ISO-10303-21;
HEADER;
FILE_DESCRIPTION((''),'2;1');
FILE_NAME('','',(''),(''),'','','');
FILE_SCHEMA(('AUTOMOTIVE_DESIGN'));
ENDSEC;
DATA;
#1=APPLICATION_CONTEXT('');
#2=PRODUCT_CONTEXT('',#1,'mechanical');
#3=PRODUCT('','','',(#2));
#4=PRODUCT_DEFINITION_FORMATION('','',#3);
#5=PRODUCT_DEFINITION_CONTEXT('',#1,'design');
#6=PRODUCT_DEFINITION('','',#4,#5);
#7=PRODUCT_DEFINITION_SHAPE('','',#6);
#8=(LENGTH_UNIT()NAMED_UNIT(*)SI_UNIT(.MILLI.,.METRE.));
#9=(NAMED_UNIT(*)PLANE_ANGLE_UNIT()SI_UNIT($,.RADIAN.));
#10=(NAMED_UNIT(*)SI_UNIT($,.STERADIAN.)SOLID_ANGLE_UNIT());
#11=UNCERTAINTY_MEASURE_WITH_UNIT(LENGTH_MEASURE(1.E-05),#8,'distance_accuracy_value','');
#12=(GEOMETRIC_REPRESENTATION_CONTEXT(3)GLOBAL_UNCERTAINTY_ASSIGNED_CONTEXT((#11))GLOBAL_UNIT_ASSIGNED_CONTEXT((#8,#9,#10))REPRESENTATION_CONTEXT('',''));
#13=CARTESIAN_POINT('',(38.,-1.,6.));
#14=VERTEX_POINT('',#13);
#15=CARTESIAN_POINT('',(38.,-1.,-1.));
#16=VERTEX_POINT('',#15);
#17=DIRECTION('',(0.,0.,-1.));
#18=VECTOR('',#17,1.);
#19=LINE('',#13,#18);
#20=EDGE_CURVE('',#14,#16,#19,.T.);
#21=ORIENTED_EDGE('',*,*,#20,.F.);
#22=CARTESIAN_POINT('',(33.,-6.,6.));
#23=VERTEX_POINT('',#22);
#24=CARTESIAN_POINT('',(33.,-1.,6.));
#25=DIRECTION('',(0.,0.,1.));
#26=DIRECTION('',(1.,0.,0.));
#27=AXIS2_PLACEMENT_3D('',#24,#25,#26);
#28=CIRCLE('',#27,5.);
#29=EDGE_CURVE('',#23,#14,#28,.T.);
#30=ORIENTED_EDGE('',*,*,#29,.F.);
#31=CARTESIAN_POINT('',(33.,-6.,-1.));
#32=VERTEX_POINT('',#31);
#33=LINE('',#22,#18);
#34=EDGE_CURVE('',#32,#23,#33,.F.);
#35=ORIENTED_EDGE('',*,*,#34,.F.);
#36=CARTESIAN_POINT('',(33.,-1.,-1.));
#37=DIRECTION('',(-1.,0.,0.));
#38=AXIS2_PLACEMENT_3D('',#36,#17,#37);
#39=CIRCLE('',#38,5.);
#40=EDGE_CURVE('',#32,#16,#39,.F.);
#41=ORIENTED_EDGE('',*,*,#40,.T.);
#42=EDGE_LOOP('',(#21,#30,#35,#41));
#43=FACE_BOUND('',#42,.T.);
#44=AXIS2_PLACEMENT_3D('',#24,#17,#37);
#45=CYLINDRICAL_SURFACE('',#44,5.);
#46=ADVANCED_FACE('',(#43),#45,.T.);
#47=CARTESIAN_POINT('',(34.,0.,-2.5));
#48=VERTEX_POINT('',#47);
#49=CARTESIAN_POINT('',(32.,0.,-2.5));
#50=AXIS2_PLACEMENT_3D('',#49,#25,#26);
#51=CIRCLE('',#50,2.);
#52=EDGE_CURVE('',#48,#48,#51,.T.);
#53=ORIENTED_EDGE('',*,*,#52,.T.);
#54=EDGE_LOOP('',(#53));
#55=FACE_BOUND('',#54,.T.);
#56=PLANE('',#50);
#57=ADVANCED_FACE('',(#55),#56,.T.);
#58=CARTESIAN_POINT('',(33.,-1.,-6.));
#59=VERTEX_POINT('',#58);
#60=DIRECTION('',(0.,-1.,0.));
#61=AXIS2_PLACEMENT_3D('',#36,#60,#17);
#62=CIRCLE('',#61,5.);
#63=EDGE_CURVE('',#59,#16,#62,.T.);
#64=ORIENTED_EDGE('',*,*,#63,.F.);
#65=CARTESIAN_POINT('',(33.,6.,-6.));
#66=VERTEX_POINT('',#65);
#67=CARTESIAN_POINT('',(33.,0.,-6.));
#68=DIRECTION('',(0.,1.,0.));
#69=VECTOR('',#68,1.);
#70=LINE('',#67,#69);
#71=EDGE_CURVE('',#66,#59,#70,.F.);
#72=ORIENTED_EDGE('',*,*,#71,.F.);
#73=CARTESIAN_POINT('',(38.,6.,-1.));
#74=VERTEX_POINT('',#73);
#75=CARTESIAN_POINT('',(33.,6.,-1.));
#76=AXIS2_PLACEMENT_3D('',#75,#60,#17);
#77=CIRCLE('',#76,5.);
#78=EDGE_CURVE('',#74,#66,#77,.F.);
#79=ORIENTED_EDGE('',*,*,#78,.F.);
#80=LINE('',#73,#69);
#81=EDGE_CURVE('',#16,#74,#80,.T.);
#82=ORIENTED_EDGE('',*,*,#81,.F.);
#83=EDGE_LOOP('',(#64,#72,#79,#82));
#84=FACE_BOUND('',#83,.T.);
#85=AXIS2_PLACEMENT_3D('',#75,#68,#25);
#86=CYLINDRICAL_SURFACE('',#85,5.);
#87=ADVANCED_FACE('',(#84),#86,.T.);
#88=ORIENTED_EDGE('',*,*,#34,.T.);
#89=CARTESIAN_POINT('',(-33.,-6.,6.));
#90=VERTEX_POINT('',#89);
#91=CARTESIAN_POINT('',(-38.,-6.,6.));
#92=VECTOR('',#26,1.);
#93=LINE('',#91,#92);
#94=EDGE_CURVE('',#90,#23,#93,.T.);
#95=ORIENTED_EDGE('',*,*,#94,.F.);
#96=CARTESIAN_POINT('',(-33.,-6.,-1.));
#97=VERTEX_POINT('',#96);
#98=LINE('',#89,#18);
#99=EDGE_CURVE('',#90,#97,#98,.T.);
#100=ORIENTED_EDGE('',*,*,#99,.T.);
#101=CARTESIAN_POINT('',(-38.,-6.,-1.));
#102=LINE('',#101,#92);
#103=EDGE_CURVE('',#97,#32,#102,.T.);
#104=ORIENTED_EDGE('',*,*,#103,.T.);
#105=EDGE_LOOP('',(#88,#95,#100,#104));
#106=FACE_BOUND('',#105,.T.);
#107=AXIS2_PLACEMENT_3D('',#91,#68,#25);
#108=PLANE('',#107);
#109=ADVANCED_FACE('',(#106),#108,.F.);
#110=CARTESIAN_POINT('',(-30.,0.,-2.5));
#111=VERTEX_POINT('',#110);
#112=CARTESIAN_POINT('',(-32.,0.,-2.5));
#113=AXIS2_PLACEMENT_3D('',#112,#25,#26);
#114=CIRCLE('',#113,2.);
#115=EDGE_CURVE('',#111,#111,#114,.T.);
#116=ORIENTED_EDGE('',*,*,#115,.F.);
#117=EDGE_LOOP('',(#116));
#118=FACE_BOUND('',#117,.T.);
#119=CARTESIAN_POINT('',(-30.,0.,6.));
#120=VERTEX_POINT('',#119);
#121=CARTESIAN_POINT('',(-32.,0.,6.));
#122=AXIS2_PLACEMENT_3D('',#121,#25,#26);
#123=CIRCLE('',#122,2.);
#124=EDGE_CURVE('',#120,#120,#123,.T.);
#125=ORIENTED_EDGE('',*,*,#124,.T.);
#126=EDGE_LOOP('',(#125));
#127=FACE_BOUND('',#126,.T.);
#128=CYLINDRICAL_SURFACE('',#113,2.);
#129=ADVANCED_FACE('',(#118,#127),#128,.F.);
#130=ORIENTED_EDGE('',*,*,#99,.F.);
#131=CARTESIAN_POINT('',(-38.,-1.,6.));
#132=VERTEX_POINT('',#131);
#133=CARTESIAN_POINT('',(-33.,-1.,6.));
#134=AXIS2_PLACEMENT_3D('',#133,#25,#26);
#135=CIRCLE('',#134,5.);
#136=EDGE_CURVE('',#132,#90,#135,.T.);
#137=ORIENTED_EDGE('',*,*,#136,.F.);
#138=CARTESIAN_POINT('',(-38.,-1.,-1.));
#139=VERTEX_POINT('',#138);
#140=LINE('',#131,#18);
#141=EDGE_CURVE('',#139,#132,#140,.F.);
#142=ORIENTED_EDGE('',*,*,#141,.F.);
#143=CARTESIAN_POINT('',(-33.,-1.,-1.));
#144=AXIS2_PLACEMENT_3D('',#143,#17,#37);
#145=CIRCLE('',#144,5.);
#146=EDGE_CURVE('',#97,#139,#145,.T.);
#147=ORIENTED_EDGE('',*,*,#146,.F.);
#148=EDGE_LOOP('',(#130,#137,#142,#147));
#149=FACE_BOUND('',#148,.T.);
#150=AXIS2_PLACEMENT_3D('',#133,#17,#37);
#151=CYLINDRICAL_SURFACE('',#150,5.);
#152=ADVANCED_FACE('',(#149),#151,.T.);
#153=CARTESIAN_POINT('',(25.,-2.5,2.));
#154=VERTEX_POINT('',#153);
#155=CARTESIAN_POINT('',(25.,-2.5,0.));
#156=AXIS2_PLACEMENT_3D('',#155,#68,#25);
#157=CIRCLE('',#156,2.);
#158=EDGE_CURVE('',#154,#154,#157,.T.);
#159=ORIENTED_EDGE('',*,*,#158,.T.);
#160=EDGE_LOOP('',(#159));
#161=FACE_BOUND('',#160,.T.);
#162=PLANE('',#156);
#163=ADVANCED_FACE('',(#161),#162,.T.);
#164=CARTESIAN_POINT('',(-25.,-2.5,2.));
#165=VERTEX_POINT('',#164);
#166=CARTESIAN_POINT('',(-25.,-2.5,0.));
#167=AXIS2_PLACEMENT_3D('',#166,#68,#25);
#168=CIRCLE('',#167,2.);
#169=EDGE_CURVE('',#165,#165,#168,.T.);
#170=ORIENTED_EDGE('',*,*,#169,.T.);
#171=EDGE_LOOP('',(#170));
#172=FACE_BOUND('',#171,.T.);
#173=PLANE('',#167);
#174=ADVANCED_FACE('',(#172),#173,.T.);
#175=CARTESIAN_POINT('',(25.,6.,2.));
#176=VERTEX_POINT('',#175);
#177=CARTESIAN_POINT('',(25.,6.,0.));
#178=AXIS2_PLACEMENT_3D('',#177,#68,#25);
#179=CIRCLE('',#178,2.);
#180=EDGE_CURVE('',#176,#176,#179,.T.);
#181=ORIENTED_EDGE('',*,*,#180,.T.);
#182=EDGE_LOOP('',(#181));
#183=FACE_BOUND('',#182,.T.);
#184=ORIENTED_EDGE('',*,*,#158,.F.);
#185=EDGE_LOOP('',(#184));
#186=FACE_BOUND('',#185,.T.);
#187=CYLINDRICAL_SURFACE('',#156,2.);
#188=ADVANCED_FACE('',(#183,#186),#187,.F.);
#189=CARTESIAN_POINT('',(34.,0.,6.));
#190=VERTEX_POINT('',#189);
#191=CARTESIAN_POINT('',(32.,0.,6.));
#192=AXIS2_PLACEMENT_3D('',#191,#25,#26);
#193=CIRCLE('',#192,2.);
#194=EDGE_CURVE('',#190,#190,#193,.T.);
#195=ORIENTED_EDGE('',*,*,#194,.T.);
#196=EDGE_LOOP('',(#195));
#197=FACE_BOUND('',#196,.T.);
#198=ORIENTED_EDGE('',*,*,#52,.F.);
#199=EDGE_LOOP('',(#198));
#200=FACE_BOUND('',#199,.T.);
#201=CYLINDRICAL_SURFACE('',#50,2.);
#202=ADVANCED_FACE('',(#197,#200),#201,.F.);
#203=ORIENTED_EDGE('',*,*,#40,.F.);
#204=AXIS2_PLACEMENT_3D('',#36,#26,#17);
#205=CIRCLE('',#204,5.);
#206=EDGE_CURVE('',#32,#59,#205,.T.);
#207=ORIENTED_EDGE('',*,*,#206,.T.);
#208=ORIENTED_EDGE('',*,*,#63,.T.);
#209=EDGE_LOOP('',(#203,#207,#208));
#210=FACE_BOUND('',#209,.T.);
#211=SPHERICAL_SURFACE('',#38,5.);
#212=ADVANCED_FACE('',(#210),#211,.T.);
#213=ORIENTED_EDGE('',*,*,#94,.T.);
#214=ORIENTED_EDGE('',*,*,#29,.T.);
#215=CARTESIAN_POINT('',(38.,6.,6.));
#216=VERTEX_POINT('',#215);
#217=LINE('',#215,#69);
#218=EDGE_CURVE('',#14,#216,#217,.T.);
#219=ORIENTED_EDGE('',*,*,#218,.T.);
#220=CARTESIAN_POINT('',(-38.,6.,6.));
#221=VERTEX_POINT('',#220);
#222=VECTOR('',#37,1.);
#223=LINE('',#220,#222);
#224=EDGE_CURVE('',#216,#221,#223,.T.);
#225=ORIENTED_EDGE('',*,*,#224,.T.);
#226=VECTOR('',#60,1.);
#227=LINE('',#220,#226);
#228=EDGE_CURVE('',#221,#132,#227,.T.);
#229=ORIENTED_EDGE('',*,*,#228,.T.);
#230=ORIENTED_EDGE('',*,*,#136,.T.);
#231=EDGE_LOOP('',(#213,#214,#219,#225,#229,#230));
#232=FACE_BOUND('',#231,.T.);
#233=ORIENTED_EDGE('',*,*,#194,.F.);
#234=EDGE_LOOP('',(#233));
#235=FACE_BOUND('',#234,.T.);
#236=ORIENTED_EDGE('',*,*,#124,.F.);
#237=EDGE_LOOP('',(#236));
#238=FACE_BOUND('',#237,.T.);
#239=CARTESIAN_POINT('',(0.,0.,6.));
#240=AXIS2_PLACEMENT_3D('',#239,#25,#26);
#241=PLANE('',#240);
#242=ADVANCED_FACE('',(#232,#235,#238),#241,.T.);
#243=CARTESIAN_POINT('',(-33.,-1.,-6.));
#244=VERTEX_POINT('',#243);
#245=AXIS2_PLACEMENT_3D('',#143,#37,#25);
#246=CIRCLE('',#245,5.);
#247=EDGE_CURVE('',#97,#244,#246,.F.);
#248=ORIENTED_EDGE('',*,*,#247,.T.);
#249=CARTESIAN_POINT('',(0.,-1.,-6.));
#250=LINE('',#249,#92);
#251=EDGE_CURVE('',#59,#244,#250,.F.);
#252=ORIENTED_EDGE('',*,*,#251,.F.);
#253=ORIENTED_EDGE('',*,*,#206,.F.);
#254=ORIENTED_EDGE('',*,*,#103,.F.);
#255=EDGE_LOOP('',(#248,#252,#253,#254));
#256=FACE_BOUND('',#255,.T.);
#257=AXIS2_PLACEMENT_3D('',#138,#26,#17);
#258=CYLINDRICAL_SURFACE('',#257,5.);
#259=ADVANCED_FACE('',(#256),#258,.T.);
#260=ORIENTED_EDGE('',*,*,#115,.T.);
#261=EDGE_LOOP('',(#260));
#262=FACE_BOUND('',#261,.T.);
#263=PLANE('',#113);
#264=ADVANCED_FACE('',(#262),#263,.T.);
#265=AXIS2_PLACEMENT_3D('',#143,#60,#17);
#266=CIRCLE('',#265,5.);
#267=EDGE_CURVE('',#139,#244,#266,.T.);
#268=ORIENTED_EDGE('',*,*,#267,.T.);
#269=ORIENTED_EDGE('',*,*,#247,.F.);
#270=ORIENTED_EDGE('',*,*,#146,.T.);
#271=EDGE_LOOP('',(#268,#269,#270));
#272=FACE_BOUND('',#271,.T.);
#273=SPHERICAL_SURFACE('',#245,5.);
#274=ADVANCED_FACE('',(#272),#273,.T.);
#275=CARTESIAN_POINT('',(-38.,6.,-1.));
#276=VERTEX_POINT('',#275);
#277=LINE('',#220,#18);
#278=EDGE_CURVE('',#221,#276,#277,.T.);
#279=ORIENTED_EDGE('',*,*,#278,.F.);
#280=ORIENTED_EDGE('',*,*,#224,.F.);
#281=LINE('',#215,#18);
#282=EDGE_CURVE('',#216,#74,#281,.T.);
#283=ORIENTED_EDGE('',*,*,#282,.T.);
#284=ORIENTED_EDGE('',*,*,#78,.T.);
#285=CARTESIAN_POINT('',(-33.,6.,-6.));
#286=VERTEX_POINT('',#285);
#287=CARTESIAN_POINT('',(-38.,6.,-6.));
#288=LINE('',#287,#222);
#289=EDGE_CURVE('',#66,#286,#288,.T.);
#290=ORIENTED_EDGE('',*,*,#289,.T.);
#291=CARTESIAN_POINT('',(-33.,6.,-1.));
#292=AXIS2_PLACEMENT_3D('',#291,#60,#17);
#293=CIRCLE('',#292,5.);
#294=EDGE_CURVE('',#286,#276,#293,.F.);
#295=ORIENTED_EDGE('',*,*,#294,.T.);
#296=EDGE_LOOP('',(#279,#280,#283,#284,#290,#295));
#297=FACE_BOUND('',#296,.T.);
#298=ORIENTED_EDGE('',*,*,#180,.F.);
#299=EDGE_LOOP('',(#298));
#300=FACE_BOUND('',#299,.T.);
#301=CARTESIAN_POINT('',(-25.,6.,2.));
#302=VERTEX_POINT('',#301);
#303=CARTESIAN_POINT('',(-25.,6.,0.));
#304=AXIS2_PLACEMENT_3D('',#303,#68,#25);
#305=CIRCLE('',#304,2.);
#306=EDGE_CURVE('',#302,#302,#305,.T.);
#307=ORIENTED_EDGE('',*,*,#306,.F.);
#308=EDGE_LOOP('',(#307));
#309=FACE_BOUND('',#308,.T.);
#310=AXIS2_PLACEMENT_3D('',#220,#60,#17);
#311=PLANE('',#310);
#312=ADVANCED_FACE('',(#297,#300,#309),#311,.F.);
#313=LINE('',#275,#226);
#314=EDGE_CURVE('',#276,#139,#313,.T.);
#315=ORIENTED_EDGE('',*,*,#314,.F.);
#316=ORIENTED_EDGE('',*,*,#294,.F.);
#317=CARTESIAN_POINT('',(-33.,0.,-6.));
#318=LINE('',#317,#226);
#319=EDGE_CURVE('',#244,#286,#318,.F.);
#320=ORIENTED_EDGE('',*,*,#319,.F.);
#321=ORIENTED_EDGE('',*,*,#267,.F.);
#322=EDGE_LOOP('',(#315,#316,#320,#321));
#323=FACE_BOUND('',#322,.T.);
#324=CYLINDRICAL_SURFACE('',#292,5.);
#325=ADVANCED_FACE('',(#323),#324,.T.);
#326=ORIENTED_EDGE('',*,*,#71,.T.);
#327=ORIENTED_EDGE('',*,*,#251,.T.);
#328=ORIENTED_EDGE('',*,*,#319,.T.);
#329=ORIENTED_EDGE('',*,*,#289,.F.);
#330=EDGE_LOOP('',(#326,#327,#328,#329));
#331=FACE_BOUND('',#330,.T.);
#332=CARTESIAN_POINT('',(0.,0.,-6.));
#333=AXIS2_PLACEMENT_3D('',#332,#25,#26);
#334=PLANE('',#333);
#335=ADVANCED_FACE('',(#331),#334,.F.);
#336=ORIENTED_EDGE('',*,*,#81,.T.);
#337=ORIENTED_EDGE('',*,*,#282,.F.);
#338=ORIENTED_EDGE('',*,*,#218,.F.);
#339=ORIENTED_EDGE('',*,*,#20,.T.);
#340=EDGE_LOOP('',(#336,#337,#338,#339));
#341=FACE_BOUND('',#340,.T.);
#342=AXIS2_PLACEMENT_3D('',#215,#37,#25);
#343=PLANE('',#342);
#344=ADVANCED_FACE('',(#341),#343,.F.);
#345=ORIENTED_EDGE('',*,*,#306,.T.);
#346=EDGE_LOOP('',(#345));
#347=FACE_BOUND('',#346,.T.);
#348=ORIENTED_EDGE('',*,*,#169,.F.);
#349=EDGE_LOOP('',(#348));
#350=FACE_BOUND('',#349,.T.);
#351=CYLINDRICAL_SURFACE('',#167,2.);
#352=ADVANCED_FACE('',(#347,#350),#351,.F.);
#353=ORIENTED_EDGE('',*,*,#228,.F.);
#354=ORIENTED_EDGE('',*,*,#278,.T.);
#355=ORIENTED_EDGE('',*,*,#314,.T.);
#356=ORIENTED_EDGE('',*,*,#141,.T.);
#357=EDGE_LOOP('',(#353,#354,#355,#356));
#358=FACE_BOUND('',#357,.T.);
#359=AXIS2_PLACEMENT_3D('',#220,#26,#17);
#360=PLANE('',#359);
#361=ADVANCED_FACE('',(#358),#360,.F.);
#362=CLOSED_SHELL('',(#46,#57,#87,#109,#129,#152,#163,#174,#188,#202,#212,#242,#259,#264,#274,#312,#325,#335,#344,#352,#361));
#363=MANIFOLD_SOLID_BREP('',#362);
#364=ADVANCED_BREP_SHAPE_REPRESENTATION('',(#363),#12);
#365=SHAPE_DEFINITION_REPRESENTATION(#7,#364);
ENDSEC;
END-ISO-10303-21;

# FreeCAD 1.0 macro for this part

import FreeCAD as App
import Part
import Sketcher
Q = App.Units.Quantity


def edges_at(feature, points):
    """Names of the edges that pass closest to the given points."""
    edges = feature.Shape.Edges
    near = lambda p: min(range(len(edges)), key=lambda i: edges[i].distToShape(Part.Vertex(*p))[0])
    return sorted({f"Edge{near(p) + 1}" for p in points})


def add_polygon(sketch, points):
    """Adds a closed chain of lines whose ends are joined by coincident constraints."""
    first, n = sketch.GeometryCount, len(points)
    for a, b in zip(points, points[1:] + points[:1]):
        sketch.addGeometry(Part.LineSegment(App.Vector(*a, 0), App.Vector(*b, 0)), False)
    for i in range(n):
        sketch.addConstraint(Sketcher.Constraint("Coincident", first + i, 2, first + (i + 1) % n, 1))

doc = App.newDocument("Part")
params = doc.addObject("Spreadsheet::Sheet", "Params")
for row, (alias, value) in enumerate([
    ("sketch1_width", "76 mm"),
    ("sketch1_height", "12 mm"),
    ("pad1_length", "12 mm"),
    ("sketch2_diameter", "4 mm"),
    ("pocket1_length", "8.5 mm"),
    ("sketch3_diameter", "4 mm"),
    ("pocket2_length", "8.5 mm"),
    ("fillet_radius", "5 mm"),
], start=1):
    params.set(f"A{row}", alias)
    params.set(f"B{row}", "=" + value)
    params.setAlias(f"B{row}", alias)

body = doc.addObject("PartDesign::Body", "Body")

# Sketch on XY plane
sketch1 = body.newObject("Sketcher::SketchObject", "Sketch")
sketch1.AttachmentSupport = (doc.getObject("XY_Plane"), [""])
sketch1.MapMode = "FlatFace"
add_polygon(sketch1, [(-38, 6), (-38, -6), (38, -6), (38, 6)])  # lines 0-3
sketch1.addConstraint(Sketcher.Constraint("Vertical", 0))
sketch1.addConstraint(Sketcher.Constraint("Horizontal", 1))
sketch1.addConstraint(Sketcher.Constraint("Vertical", 2))
sketch1.addConstraint(Sketcher.Constraint("Horizontal", 3))
sketch1.addConstraint(Sketcher.Constraint("Symmetric", 0, 2, 2, 2, -1, 1))
sketch1.addConstraint(Sketcher.Constraint("DistanceX", 1, 1, 1, 2, Q("76 mm")))
sketch1.addConstraint(Sketcher.Constraint("DistanceY", 0, 2, 0, 1, Q("12 mm")))
sketch1.setExpression("Constraints[9]", "Params.sketch1_width")
sketch1.setExpression("Constraints[10]", "Params.sketch1_height")
pad1 = body.newObject("PartDesign::Pad", "Pad")
pad1.Profile = sketch1
pad1.setExpression("Length", "Params.pad1_length")
pad1.Midplane = True

# Sketch on XY plane
sketch2 = body.newObject("Sketcher::SketchObject", "Sketch001")
sketch2.AttachmentSupport = (doc.getObject("XY_Plane"), [""])
sketch2.MapMode = "FlatFace"
sketch2.AttachmentOffset = App.Placement(App.Vector(0, 0, 6), App.Rotation())
sketch2.addGeometry(Part.Circle(App.Vector(-32, 0, 0), App.Vector(0, 0, 1), 2), False)
sketch2.addGeometry(Part.Circle(App.Vector(32, 0, 0), App.Vector(0, 0, 1), 2), False)
sketch2.addConstraint(Sketcher.Constraint("Equal", 0, 1))
sketch2.addConstraint(Sketcher.Constraint("Symmetric", 0, 3, 1, 3, -1, 1))
sketch2.addConstraint(Sketcher.Constraint("PointOnObject", 0, 3, -1))
sketch2.addConstraint(Sketcher.Constraint("Diameter", 0, Q("4 mm")))
sketch2.addConstraint(Sketcher.Constraint("DistanceX", 0, 3, -1, 1, Q("32 mm")))
sketch2.setExpression("Constraints[3]", "Params.sketch2_diameter")
pocket1 = body.newObject("PartDesign::Pocket", "Pocket")
pocket1.Profile = sketch2
pocket1.setExpression("Length", "Params.pocket1_length")

# Sketch on XZ plane
sketch3 = body.newObject("Sketcher::SketchObject", "Sketch002")
sketch3.AttachmentSupport = (doc.getObject("XZ_Plane"), [""])
sketch3.MapMode = "FlatFace"
sketch3.AttachmentOffset = App.Placement(App.Vector(0, 0, -6), App.Rotation())
sketch3.addGeometry(Part.Circle(App.Vector(-25, 0, 0), App.Vector(0, 0, 1), 2), False)
sketch3.addGeometry(Part.Circle(App.Vector(25, 0, 0), App.Vector(0, 0, 1), 2), False)
sketch3.addConstraint(Sketcher.Constraint("Equal", 0, 1))
sketch3.addConstraint(Sketcher.Constraint("Symmetric", 0, 3, 1, 3, -1, 1))
sketch3.addConstraint(Sketcher.Constraint("PointOnObject", 0, 3, -1))
sketch3.addConstraint(Sketcher.Constraint("Diameter", 0, Q("4 mm")))
sketch3.addConstraint(Sketcher.Constraint("DistanceX", 0, 3, -1, 1, Q("25 mm")))
sketch3.setExpression("Constraints[3]", "Params.sketch3_diameter")
pocket2 = body.newObject("PartDesign::Pocket", "Pocket001")
pocket2.Profile = sketch3
pocket2.setExpression("Length", "Params.pocket2_length")
pocket2.Reversed = True
doc.recompute()

fillet = body.newObject("PartDesign::Fillet", "Fillet")
fillet.Base = (pocket2, edges_at(pocket2, [
    (38, 0, -6),
    (0, -6, -6),
    (-38, 0, -6),
    (38, -6, 0),
    (-38, -6, 0),
]))
fillet.setExpression("Radius", "Params.fillet_radius")

doc.recompute()
